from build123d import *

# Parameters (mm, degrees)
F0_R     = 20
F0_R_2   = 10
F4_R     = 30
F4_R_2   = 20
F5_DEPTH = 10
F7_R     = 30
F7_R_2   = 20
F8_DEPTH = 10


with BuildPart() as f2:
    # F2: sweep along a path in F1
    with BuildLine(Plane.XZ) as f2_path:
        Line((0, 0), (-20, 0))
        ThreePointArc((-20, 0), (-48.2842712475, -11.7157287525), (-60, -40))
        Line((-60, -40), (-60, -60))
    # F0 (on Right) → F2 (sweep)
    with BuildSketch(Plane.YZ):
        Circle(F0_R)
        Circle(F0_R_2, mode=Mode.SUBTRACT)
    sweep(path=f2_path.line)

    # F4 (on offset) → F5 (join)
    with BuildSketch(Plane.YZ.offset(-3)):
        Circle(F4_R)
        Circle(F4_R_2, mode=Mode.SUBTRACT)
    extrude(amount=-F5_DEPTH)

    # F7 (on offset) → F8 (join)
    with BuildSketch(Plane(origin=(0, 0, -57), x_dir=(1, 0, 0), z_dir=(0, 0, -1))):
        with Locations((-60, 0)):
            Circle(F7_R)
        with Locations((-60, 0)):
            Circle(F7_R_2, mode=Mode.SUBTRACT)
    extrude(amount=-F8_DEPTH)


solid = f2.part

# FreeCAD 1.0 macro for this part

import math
import FreeCAD as App
import Part
import Sketcher
Q = App.Units.Quantity

doc = App.newDocument("Part")
body = doc.addObject("PartDesign::Body", "Body")

sketch1 = body.newObject("Sketcher::SketchObject", "Sketch")
sketch1.AttachmentSupport = (doc.getObject("YZ_Plane"), [""])
sketch1.MapMode = "FlatFace"
sketch1.addGeometry(Part.Circle(App.Vector(0, 0, 0), App.Vector(0, 0, 1), 20), False)
sketch1.addGeometry(Part.Circle(App.Vector(0, 0, 0), App.Vector(0, 0, 1), 10), False)
sketch1.addConstraint(Sketcher.Constraint("Coincident", 0, 3, -1, 1))
sketch1.addConstraint(Sketcher.Constraint("Coincident", 1, 3, -1, 1))
sketch1.addConstraint(Sketcher.Constraint("Diameter", 0, Q("40 mm")))
sketch1.addConstraint(Sketcher.Constraint("Diameter", 1, Q("20 mm")))

sketch2 = body.newObject("Sketcher::SketchObject", "Sketch001")
sketch2.AttachmentSupport = (doc.getObject("XZ_Plane"), [""])
sketch2.MapMode = "FlatFace"
sketch2.addGeometry(Part.LineSegment(App.Vector(0, 0, 0), App.Vector(-20, 0, 0)), False)
sketch2.addGeometry(Part.ArcOfCircle(Part.Circle(App.Vector(-20, -40, 0), App.Vector(0, 0, 1), 40), math.radians(90), math.radians(180)), False)
sketch2.addGeometry(Part.LineSegment(App.Vector(-60, -40, 0), App.Vector(-60, -60, 0)), False)
sketch2.addConstraint(Sketcher.Constraint("Tangent", 0, 2, 1, 1))
sketch2.addConstraint(Sketcher.Constraint("Tangent", 1, 2, 2, 1))
sketch2.addConstraint(Sketcher.Constraint("Horizontal", 0))
sketch2.addConstraint(Sketcher.Constraint("Vertical", 2))
sketch2.addConstraint(Sketcher.Constraint("Coincident", 0, 1, -1, 1))
sketch2.addConstraint(Sketcher.Constraint("Equal", 0, 2))
sketch2.addConstraint(Sketcher.Constraint("Radius", 1, Q("40 mm")))
sketch2.addConstraint(Sketcher.Constraint("DistanceX", 0, 2, 0, 1, Q("20 mm")))
doc.recompute()

additivepipe = body.newObject("PartDesign::AdditivePipe", "AdditivePipe")
additivepipe.Profile = sketch1
additivepipe.Spine = (sketch2, ["Edge1", "Edge2", "Edge3"])

sketch3 = body.newObject("Sketcher::SketchObject", "Sketch002")
sketch3.AttachmentSupport = (doc.getObject("YZ_Plane"), [""])
sketch3.MapMode = "FlatFace"
sketch3.AttachmentOffset = App.Placement(App.Vector(0, 0, -3), App.Rotation())
sketch3.addGeometry(Part.Circle(App.Vector(0, 0, 0), App.Vector(0, 0, 1), 30), False)
sketch3.addGeometry(Part.Circle(App.Vector(0, 0, 0), App.Vector(0, 0, 1), 20), False)
sketch3.addConstraint(Sketcher.Constraint("Coincident", 0, 3, -1, 1))
sketch3.addConstraint(Sketcher.Constraint("Coincident", 1, 3, -1, 1))
sketch3.addConstraint(Sketcher.Constraint("Diameter", 0, Q("60 mm")))
sketch3.addConstraint(Sketcher.Constraint("Diameter", 1, Q("40 mm")))
pad1 = body.newObject("PartDesign::Pad", "Pad")
pad1.Profile = sketch3
pad1.Length = 10
pad1.Reversed = True

sketch4 = body.newObject("Sketcher::SketchObject", "Sketch003")
sketch4.AttachmentSupport = (doc.getObject("XY_Plane"), [""])
sketch4.MapMode = "FlatFace"
sketch4.AttachmentOffset = App.Placement(App.Vector(0, 0, -57), App.Rotation())
sketch4.addGeometry(Part.Circle(App.Vector(-60, 0, 0), App.Vector(0, 0, 1), 30), False)
sketch4.addGeometry(Part.Circle(App.Vector(-60, 0, 0), App.Vector(0, 0, 1), 20), False)
sketch4.addConstraint(Sketcher.Constraint("Coincident", 1, 3, 0, 3))
sketch4.addConstraint(Sketcher.Constraint("PointOnObject", 0, 3, -1))
sketch4.addConstraint(Sketcher.Constraint("Diameter", 0, Q("60 mm")))
sketch4.addConstraint(Sketcher.Constraint("Diameter", 1, Q("40 mm")))
sketch4.addConstraint(Sketcher.Constraint("DistanceX", 0, 3, -1, 1, Q("60 mm")))
pad2 = body.newObject("PartDesign::Pad", "Pad001")
pad2.Profile = sketch4
pad2.Length = 10

doc.recompute()
